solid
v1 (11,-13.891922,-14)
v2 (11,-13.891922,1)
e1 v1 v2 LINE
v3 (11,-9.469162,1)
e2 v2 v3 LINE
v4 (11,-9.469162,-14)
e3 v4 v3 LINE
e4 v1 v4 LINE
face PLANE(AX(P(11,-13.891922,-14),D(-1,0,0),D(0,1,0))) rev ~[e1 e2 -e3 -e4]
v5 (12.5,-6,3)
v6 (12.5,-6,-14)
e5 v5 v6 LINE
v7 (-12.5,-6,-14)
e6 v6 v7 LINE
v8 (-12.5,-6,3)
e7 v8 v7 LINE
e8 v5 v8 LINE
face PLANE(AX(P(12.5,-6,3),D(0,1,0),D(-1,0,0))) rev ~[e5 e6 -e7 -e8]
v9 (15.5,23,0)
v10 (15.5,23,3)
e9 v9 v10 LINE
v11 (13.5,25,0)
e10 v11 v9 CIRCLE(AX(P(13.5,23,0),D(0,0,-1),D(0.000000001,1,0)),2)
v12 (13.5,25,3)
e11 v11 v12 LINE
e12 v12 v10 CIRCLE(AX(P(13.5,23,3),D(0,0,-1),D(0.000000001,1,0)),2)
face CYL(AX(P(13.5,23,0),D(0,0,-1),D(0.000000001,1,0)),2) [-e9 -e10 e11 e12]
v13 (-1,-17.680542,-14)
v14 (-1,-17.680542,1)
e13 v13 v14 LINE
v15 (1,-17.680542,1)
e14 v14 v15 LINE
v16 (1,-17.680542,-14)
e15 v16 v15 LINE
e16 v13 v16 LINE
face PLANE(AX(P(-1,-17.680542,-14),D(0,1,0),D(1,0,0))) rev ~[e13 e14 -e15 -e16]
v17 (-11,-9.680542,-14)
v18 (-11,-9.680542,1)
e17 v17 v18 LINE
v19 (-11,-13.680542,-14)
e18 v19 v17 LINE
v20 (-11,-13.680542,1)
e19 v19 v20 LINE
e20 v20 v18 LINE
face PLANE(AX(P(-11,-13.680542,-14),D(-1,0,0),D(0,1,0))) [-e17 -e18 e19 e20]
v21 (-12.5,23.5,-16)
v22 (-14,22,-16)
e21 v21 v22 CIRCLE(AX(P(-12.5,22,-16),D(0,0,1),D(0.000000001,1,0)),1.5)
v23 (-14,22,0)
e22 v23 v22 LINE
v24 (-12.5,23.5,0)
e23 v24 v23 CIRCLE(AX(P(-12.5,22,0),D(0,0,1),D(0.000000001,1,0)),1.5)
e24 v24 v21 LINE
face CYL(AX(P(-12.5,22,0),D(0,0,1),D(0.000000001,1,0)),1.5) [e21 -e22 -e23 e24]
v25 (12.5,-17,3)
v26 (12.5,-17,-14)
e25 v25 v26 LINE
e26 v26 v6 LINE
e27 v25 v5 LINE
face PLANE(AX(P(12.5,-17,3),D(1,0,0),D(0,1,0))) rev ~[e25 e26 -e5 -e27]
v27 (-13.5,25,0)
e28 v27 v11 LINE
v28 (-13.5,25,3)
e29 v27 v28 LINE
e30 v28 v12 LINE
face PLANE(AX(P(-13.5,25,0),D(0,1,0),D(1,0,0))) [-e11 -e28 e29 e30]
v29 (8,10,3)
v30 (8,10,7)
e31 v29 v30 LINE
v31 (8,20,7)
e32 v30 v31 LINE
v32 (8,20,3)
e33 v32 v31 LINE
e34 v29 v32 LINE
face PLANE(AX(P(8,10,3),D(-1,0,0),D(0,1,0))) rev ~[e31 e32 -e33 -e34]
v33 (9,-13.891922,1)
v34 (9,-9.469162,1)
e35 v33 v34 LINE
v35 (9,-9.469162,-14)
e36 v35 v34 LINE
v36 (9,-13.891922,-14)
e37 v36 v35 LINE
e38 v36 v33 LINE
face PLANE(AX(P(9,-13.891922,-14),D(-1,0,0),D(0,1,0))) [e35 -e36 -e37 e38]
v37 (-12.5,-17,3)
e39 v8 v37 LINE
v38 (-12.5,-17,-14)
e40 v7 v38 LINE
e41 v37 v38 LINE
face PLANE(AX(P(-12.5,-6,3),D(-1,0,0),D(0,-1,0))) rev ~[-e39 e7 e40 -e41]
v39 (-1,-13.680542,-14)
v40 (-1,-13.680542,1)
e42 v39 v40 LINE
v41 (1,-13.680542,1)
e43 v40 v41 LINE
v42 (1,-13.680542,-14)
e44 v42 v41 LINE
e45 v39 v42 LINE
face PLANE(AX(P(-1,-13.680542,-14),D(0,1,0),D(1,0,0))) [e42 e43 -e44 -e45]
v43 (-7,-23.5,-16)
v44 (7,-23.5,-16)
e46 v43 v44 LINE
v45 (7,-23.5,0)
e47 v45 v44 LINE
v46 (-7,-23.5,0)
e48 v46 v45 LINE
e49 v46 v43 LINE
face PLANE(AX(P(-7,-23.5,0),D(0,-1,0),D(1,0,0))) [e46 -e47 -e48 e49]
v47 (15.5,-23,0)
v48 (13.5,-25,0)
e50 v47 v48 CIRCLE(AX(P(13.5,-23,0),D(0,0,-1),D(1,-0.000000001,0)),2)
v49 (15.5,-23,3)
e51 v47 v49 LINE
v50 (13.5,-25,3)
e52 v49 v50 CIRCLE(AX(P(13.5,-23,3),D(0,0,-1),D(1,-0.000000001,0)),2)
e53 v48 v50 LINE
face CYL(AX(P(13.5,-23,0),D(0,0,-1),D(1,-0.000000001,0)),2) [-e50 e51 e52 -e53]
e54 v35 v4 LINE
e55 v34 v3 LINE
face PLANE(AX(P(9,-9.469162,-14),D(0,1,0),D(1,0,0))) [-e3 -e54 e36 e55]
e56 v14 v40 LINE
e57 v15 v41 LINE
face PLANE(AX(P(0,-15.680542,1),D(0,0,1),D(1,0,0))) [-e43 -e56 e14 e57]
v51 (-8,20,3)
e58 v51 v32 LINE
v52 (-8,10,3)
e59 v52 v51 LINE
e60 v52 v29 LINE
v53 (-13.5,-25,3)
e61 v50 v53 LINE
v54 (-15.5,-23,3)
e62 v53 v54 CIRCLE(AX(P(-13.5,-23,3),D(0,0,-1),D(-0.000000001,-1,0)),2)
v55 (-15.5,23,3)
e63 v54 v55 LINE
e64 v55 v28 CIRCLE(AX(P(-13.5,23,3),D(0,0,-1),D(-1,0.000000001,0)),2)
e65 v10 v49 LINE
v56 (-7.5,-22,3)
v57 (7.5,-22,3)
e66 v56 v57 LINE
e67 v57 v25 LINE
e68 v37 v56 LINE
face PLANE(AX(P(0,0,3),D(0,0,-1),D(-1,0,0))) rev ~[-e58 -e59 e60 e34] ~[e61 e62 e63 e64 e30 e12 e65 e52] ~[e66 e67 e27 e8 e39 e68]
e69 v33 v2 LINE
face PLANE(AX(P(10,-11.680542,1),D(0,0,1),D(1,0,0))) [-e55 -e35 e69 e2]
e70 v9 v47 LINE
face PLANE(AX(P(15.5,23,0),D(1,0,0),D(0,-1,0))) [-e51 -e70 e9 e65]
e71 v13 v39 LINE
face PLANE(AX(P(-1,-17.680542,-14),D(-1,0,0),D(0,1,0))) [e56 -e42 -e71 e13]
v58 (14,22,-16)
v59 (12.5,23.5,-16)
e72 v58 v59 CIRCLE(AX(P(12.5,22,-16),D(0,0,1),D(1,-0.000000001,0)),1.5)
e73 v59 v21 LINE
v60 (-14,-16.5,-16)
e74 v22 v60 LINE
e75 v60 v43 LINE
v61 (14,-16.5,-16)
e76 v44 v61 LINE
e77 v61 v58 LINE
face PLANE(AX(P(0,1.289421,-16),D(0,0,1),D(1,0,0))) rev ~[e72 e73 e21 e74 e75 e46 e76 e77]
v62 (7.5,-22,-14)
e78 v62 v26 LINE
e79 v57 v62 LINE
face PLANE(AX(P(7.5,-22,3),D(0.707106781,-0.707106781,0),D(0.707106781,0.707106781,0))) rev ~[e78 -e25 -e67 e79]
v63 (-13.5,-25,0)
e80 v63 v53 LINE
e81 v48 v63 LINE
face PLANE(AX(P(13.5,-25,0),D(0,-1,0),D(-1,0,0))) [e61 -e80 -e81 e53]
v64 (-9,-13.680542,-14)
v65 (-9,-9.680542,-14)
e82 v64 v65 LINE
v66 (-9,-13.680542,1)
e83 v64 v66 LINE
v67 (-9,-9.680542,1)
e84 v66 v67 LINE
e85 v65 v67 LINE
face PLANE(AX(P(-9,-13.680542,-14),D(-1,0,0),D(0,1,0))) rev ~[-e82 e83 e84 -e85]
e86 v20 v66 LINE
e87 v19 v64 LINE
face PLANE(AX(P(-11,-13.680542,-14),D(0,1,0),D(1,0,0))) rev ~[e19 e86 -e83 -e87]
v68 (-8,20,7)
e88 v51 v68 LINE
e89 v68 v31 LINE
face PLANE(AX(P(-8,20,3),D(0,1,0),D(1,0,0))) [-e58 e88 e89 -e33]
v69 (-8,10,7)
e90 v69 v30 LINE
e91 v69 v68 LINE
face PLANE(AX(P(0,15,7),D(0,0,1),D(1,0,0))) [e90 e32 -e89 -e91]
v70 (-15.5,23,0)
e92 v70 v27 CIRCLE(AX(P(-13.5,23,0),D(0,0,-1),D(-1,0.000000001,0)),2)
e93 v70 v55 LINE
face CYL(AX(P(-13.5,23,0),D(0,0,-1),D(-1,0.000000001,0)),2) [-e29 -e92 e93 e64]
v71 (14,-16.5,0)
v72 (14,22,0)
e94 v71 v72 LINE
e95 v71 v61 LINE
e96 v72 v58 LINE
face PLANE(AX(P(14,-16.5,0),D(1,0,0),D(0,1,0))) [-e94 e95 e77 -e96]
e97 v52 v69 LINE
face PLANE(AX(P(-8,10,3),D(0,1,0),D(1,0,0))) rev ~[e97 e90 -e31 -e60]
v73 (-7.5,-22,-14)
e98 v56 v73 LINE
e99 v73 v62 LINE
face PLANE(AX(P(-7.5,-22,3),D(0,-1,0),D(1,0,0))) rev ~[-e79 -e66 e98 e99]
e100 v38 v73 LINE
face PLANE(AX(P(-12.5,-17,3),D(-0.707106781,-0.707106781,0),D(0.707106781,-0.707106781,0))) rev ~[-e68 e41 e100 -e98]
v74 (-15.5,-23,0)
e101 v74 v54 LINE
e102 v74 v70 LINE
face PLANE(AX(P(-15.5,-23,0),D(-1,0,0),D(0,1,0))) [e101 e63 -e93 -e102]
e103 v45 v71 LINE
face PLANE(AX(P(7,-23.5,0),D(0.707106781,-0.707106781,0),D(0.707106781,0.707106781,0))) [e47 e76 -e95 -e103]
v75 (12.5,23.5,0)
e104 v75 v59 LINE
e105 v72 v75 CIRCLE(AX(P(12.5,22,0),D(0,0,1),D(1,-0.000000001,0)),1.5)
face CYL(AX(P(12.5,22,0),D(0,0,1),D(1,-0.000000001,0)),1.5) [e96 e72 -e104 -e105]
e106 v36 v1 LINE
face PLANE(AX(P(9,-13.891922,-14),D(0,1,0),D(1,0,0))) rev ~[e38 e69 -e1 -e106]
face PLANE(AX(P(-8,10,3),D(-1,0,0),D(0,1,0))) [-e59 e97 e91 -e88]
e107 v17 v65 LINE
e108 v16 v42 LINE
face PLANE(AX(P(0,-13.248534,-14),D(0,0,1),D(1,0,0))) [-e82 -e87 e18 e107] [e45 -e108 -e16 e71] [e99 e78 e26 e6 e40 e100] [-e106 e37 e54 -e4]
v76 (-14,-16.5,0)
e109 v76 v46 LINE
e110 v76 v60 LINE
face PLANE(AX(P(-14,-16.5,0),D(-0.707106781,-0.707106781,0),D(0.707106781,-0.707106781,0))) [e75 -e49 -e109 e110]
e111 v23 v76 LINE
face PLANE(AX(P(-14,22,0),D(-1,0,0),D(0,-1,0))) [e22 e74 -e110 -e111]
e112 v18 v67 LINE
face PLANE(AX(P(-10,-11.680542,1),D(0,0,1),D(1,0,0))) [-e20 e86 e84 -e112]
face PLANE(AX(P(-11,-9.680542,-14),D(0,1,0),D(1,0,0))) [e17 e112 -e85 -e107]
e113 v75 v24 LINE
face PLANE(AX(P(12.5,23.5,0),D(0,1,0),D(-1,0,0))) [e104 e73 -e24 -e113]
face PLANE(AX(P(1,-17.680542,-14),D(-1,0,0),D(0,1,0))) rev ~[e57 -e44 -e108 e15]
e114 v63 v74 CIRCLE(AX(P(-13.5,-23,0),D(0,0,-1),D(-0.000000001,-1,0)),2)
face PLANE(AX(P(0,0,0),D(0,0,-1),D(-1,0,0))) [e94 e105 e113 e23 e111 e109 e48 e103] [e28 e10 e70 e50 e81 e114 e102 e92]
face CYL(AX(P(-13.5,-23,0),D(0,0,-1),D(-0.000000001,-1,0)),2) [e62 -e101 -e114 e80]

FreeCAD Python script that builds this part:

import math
import FreeCAD as App
import Part
import Sketcher
from FreeCAD import Vector

doc = App.newDocument("Part")
body = doc.addObject("PartDesign::Body", "Body")

sketch1 = doc.addObject("Sketcher::SketchObject", "Sketch")
body.addObject(sketch1)
sketch1.AttachmentSupport = (doc.XY_Plane, [""])
sketch1.MapMode = "FlatFace"
sketch1.addGeometry(Part.LineSegment(Vector(13.5, 25, 0), Vector(-13.5, 25, 0)), False)
sketch1.addGeometry(Part.ArcOfCircle(Part.Circle(Vector(-13.5, 23, 0), Vector(0, 0, 1), 2), math.radians(90), math.radians(180)), False)
sketch1.addGeometry(Part.LineSegment(Vector(-15.5, 23, 0), Vector(-15.5, -23, 0)), False)
sketch1.addGeometry(Part.ArcOfCircle(Part.Circle(Vector(-13.5, -23, 0), Vector(0, 0, 1), 2), math.radians(-180), math.radians(-90)), False)
sketch1.addGeometry(Part.LineSegment(Vector(-13.5, -25, 0), Vector(13.5, -25, 0)), False)
sketch1.addGeometry(Part.ArcOfCircle(Part.Circle(Vector(13.5, -23, 0), Vector(0, 0, 1), 2), math.radians(-90), math.radians(0)), False)
sketch1.addGeometry(Part.LineSegment(Vector(15.5, -23, 0), Vector(15.5, 23, 0)), False)
sketch1.addGeometry(Part.ArcOfCircle(Part.Circle(Vector(13.5, 23, 0), Vector(0, 0, 1), 2), math.radians(0), math.radians(90)), False)
sketch1.addConstraint(Sketcher.Constraint("Tangent", 0, 2, 1, 1))
sketch1.addConstraint(Sketcher.Constraint("Tangent", 1, 2, 2, 1))
sketch1.addConstraint(Sketcher.Constraint("Tangent", 2, 2, 3, 1))
sketch1.addConstraint(Sketcher.Constraint("Tangent", 3, 2, 4, 1))
sketch1.addConstraint(Sketcher.Constraint("Tangent", 4, 2, 5, 1))
sketch1.addConstraint(Sketcher.Constraint("Tangent", 5, 2, 6, 1))
sketch1.addConstraint(Sketcher.Constraint("Tangent", 6, 2, 7, 1))
sketch1.addConstraint(Sketcher.Constraint("Tangent", 7, 2, 0, 1))
sketch1.addConstraint(Sketcher.Constraint("Horizontal", 0))
sketch1.addConstraint(Sketcher.Constraint("Vertical", 2))
sketch1.addConstraint(Sketcher.Constraint("Horizontal", 4))
sketch1.addConstraint(Sketcher.Constraint("Vertical", 6))
sketch1.addConstraint(Sketcher.Constraint("Equal", 1, 3))
sketch1.addConstraint(Sketcher.Constraint("Equal", 3, 5))
sketch1.addConstraint(Sketcher.Constraint("Equal", 5, 7))
sketch1.addConstraint(Sketcher.Constraint("Symmetric", 1, 3, 5, 3, -1, 1))
sketch1.addConstraint(Sketcher.Constraint("Radius", 1, 2.0))
sketch1.addConstraint(Sketcher.Constraint("DistanceX", 0, 2, 0, 1, 27.0))
sketch1.addConstraint(Sketcher.Constraint("DistanceY", 2, 2, 2, 1, 46.0))
pad1 = doc.addObject("PartDesign::Pad", "Pad")
body.addObject(pad1)
pad1.Profile = sketch1
pad1.Length = 3

sketch2 = doc.addObject("Sketcher::SketchObject", "Sketch001")
body.addObject(sketch2)
sketch2.AttachmentSupport = (doc.XY_Plane, [""])
sketch2.MapMode = "FlatFace"
sketch2.addGeometry(Part.LineSegment(Vector(-12.5, 23.5, 0), Vector(12.5, 23.5, 0)), False)
sketch2.addGeometry(Part.ArcOfCircle(Part.Circle(Vector(12.5, 22, 0), Vector(0, 0, 1), 1.5), math.radians(0), math.radians(90)), False)
sketch2.addGeometry(Part.LineSegment(Vector(14, 22, 0), Vector(14, -16.5, 0)), False)
sketch2.addGeometry(Part.LineSegment(Vector(14, -16.5, 0), Vector(7, -23.5, 0)), False)
sketch2.addGeometry(Part.LineSegment(Vector(7, -23.5, 0), Vector(-7, -23.5, 0)), False)
sketch2.addGeometry(Part.LineSegment(Vector(-7, -23.5, 0), Vector(-14, -16.5, 0)), False)
sketch2.addGeometry(Part.LineSegment(Vector(-14, -16.5, 0), Vector(-14, 22, 0)), False)
sketch2.addGeometry(Part.ArcOfCircle(Part.Circle(Vector(-12.5, 22, 0), Vector(0, 0, 1), 1.5), math.radians(90), math.radians(180)), False)
sketch2.addConstraint(Sketcher.Constraint("Tangent", 0, 2, 1, 2))
sketch2.addConstraint(Sketcher.Constraint("Tangent", 1, 1, 2, 1))
sketch2.addConstraint(Sketcher.Constraint("Coincident", 2, 2, 3, 1))
sketch2.addConstraint(Sketcher.Constraint("Coincident", 3, 2, 4, 1))
sketch2.addConstraint(Sketcher.Constraint("Coincident", 4, 2, 5, 1))
sketch2.addConstraint(Sketcher.Constraint("Coincident", 5, 2, 6, 1))
sketch2.addConstraint(Sketcher.Constraint("Tangent", 6, 2, 7, 2))
sketch2.addConstraint(Sketcher.Constraint("Tangent", 7, 1, 0, 1))
sketch2.addConstraint(Sketcher.Constraint("Horizontal", 0))
sketch2.addConstraint(Sketcher.Constraint("Vertical", 2))
sketch2.addConstraint(Sketcher.Constraint("Horizontal", 4))
sketch2.addConstraint(Sketcher.Constraint("Vertical", 6))
sketch2.addConstraint(Sketcher.Constraint("Equal", 1, 7))
sketch2.addConstraint(Sketcher.Constraint("Symmetric", 2, 2, 5, 2, -2))
sketch2.addConstraint(Sketcher.Constraint("Perpendicular", 3, 5))
sketch2.addConstraint(Sketcher.Constraint("Equal", 3, 5))
sketch2.addConstraint(Sketcher.Constraint("Radius", 1, 1.5))
sketch2.addConstraint(Sketcher.Constraint("DistanceX", 0, 1, 0, 2, 25.0))
sketch2.addConstraint(Sketcher.Constraint("DistanceX", 4, 2, 4, 1, 14.0))
sketch2.addConstraint(Sketcher.Constraint("DistanceY", 2, 2, 2, 1, 38.5))
sketch2.addConstraint(Sketcher.Constraint("DistanceY", -1, 1, 1, 3, 22.0))
pad2 = doc.addObject("PartDesign::Pad", "Pad001")
body.addObject(pad2)
pad2.Profile = sketch2
pad2.Length = 16
pad2.Reversed = True

sketch3 = doc.addObject("Sketcher::SketchObject", "Sketch002")
body.addObject(sketch3)
sketch3.AttachmentSupport = (doc.XY_Plane, [""])
sketch3.MapMode = "FlatFace"
sketch3.AttachmentOffset = App.Placement(Vector(0, 0, 3), App.Rotation())
sketch3.addGeometry(Part.LineSegment(Vector(-8, 20, 0), Vector(-8, 10, 0)), False)
sketch3.addGeometry(Part.LineSegment(Vector(-8, 10, 0), Vector(8, 10, 0)), False)
sketch3.addGeometry(Part.LineSegment(Vector(8, 10, 0), Vector(8, 20, 0)), False)
sketch3.addGeometry(Part.LineSegment(Vector(8, 20, 0), Vector(-8, 20, 0)), False)
sketch3.addConstraint(Sketcher.Constraint("Coincident", 0, 2, 1, 1))
sketch3.addConstraint(Sketcher.Constraint("Coincident", 1, 2, 2, 1))
sketch3.addConstraint(Sketcher.Constraint("Coincident", 2, 2, 3, 1))
sketch3.addConstraint(Sketcher.Constraint("Coincident", 3, 2, 0, 1))
sketch3.addConstraint(Sketcher.Constraint("Vertical", 0))
sketch3.addConstraint(Sketcher.Constraint("Horizontal", 1))
sketch3.addConstraint(Sketcher.Constraint("Vertical", 2))
sketch3.addConstraint(Sketcher.Constraint("Horizontal", 3))
sketch3.addConstraint(Sketcher.Constraint("DistanceX", 1, 1, 1, 2, 16.0))
sketch3.addConstraint(Sketcher.Constraint("DistanceY", 0, 2, 0, 1, 10.0))
sketch3.addConstraint(Sketcher.Constraint("DistanceX", 0, 2, -1, 1, 8.0))
sketch3.addConstraint(Sketcher.Constraint("DistanceY", -1, 1, 0, 2, 10.0))
pad3 = doc.addObject("PartDesign::Pad", "Pad002")
body.addObject(pad3)
pad3.Profile = sketch3
pad3.Length = 4

sketch4 = doc.addObject("Sketcher::SketchObject", "Sketch003")
body.addObject(sketch4)
sketch4.AttachmentSupport = (doc.XY_Plane, [""])
sketch4.MapMode = "FlatFace"
sketch4.AttachmentOffset = App.Placement(Vector(0, 0, 3), App.Rotation())
sketch4.addGeometry(Part.LineSegment(Vector(-12, -17, 0), Vector(-8, -22, 0)), False)
sketch4.addGeometry(Part.LineSegment(Vector(-8, -22, 0), Vector(8, -22, 0)), False)
sketch4.addGeometry(Part.LineSegment(Vector(8, -22, 0), Vector(12, -17, 0)), False)
sketch4.addGeometry(Part.LineSegment(Vector(12, -17, 0), Vector(12, -6, 0)), False)
sketch4.addGeometry(Part.LineSegment(Vector(12, -6, 0), Vector(-12, -6, 0)), False)
sketch4.addGeometry(Part.LineSegment(Vector(-12, -6, 0), Vector(-12, -17, 0)), False)
sketch4.addConstraint(Sketcher.Constraint("Coincident", 0, 2, 1, 1))
sketch4.addConstraint(Sketcher.Constraint("Coincident", 1, 2, 2, 1))
sketch4.addConstraint(Sketcher.Constraint("Coincident", 2, 2, 3, 1))
sketch4.addConstraint(Sketcher.Constraint("Coincident", 3, 2, 4, 1))
sketch4.addConstraint(Sketcher.Constraint("Coincident", 4, 2, 5, 1))
sketch4.addConstraint(Sketcher.Constraint("Coincident", 5, 2, 0, 1))
sketch4.addConstraint(Sketcher.Constraint("Horizontal", 1))
sketch4.addConstraint(Sketcher.Constraint("Vertical", 3))
sketch4.addConstraint(Sketcher.Constraint("Horizontal", 4))
sketch4.addConstraint(Sketcher.Constraint("Vertical", 5))
sketch4.addConstraint(Sketcher.Constraint("Symmetric", 2, 2, 5, 2, -2))
sketch4.addConstraint(Sketcher.Constraint("Perpendicular", 0, 2))
sketch4.addConstraint(Sketcher.Constraint("Equal", 0, 2))
sketch4.addConstraint(Sketcher.Constraint("DistanceX", 1, 1, 1, 2, 15.0))
sketch4.addConstraint(Sketcher.Constraint("DistanceX", 4, 2, 4, 1, 25.0))
sketch4.addConstraint(Sketcher.Constraint("DistanceY", 3, 1, 3, 2, 11.0))
sketch4.addConstraint(Sketcher.Constraint("DistanceY", 0, 2, -1, 1, 22.0))
pocket1 = doc.addObject("PartDesign::Pocket", "Pocket")
body.addObject(pocket1)
pocket1.Profile = sketch4
pocket1.Length = 17

sketch5 = doc.addObject("Sketcher::SketchObject", "Sketch004")
body.addObject(sketch5)
sketch5.AttachmentSupport = (doc.XY_Plane, [""])
sketch5.MapMode = "FlatFace"
sketch5.AttachmentOffset = App.Placement(Vector(0, 0, -14), App.Rotation())
sketch5.addGeometry(Part.LineSegment(Vector(-1, -13.7, 0), Vector(-1, -17.7, 0)), False)
sketch5.addGeometry(Part.LineSegment(Vector(-1, -17.7, 0), Vector(1, -17.7, 0)), False)
sketch5.addGeometry(Part.LineSegment(Vector(1, -17.7, 0), Vector(1, -13.7, 0)), False)
sketch5.addGeometry(Part.LineSegment(Vector(1, -13.7, 0), Vector(-1, -13.7, 0)), False)
sketch5.addGeometry(Part.LineSegment(Vector(-11, -9.7, 0), Vector(-11, -13.7, 0)), False)
sketch5.addGeometry(Part.LineSegment(Vector(-11, -13.7, 0), Vector(-9, -13.7, 0)), False)
sketch5.addGeometry(Part.LineSegment(Vector(-9, -13.7, 0), Vector(-9, -9.7, 0)), False)
sketch5.addGeometry(Part.LineSegment(Vector(-9, -9.7, 0), Vector(-11, -9.7, 0)), False)
sketch5.addGeometry(Part.LineSegment(Vector(9, -9.5, 0), Vector(9, -13.9, 0)), False)
sketch5.addGeometry(Part.LineSegment(Vector(9, -13.9, 0), Vector(11, -13.9, 0)), False)
sketch5.addGeometry(Part.LineSegment(Vector(11, -13.9, 0), Vector(11, -9.5, 0)), False)
sketch5.addGeometry(Part.LineSegment(Vector(11, -9.5, 0), Vector(9, -9.5, 0)), False)
sketch5.addConstraint(Sketcher.Constraint("Coincident", 0, 2, 1, 1))
sketch5.addConstraint(Sketcher.Constraint("Coincident", 1, 2, 2, 1))
sketch5.addConstraint(Sketcher.Constraint("Coincident", 2, 2, 3, 1))
sketch5.addConstraint(Sketcher.Constraint("Coincident", 3, 2, 0, 1))
sketch5.addConstraint(Sketcher.Constraint("Coincident", 4, 2, 5, 1))
sketch5.addConstraint(Sketcher.Constraint("Coincident", 5, 2, 6, 1))
sketch5.addConstraint(Sketcher.Constraint("Coincident", 6, 2, 7, 1))
sketch5.addConstraint(Sketcher.Constraint("Coincident", 7, 2, 4, 1))
sketch5.addConstraint(Sketcher.Constraint("Coincident", 8, 2, 9, 1))
sketch5.addConstraint(Sketcher.Constraint("Coincident", 9, 2, 10, 1))
sketch5.addConstraint(Sketcher.Constraint("Coincident", 10, 2, 11, 1))
sketch5.addConstraint(Sketcher.Constraint("Coincident", 11, 2, 8, 1))
sketch5.addConstraint(Sketcher.Constraint("Vertical", 0))
sketch5.addConstraint(Sketcher.Constraint("Horizontal", 1))
sketch5.addConstraint(Sketcher.Constraint("Vertical", 2))
sketch5.addConstraint(Sketcher.Constraint("Horizontal", 3))
sketch5.addConstraint(Sketcher.Constraint("Vertical", 4))
sketch5.addConstraint(Sketcher.Constraint("Horizontal", 5))
sketch5.addConstraint(Sketcher.Constraint("Vertical", 6))
sketch5.addConstraint(Sketcher.Constraint("Horizontal", 7))
sketch5.addConstraint(Sketcher.Constraint("Vertical", 8))
sketch5.addConstraint(Sketcher.Constraint("Horizontal", 9))
sketch5.addConstraint(Sketcher.Constraint("Vertical", 10))
sketch5.addConstraint(Sketcher.Constraint("Horizontal", 11))
sketch5.addConstraint(Sketcher.Constraint("Horizontal", 3, 2, 4, 2))
sketch5.addConstraint(Sketcher.Constraint("Equal", 3, 5))
sketch5.addConstraint(Sketcher.Constraint("Equal", 7, 9))
sketch5.addConstraint(Sketcher.Constraint("Equal", 2, 4))
sketch5.addConstraint(Sketcher.Constraint("DistanceX", 1, 1, 1, 2, 2.0))
sketch5.addConstraint(Sketcher.Constraint("DistanceY", 0, 2, 0, 1, 4.0))
sketch5.addConstraint(Sketcher.Constraint("DistanceX", 0, 2, -1, 1, 1.0))
sketch5.addConstraint(Sketcher.Constraint("DistanceX", 4, 2, -1, 1, 11.0))
sketch5.addConstraint(Sketcher.Constraint("DistanceX", -1, 1, 8, 2, 9.0))
sketch5.addConstraint(Sketcher.Constraint("DistanceY", 8, 2, 8, 1, 4.42276))
sketch5.addConstraint(Sketcher.Constraint("DistanceY", 8, 2, 2, 2, 0.21138))
sketch5.addConstraint(Sketcher.Constraint("DistanceY", 0, 2, -1, 1, 17.680542))
pad4 = doc.addObject("PartDesign::Pad", "Pad003")
body.addObject(pad4)
pad4.Profile = sketch5
pad4.Length = 15

doc.recompute()
